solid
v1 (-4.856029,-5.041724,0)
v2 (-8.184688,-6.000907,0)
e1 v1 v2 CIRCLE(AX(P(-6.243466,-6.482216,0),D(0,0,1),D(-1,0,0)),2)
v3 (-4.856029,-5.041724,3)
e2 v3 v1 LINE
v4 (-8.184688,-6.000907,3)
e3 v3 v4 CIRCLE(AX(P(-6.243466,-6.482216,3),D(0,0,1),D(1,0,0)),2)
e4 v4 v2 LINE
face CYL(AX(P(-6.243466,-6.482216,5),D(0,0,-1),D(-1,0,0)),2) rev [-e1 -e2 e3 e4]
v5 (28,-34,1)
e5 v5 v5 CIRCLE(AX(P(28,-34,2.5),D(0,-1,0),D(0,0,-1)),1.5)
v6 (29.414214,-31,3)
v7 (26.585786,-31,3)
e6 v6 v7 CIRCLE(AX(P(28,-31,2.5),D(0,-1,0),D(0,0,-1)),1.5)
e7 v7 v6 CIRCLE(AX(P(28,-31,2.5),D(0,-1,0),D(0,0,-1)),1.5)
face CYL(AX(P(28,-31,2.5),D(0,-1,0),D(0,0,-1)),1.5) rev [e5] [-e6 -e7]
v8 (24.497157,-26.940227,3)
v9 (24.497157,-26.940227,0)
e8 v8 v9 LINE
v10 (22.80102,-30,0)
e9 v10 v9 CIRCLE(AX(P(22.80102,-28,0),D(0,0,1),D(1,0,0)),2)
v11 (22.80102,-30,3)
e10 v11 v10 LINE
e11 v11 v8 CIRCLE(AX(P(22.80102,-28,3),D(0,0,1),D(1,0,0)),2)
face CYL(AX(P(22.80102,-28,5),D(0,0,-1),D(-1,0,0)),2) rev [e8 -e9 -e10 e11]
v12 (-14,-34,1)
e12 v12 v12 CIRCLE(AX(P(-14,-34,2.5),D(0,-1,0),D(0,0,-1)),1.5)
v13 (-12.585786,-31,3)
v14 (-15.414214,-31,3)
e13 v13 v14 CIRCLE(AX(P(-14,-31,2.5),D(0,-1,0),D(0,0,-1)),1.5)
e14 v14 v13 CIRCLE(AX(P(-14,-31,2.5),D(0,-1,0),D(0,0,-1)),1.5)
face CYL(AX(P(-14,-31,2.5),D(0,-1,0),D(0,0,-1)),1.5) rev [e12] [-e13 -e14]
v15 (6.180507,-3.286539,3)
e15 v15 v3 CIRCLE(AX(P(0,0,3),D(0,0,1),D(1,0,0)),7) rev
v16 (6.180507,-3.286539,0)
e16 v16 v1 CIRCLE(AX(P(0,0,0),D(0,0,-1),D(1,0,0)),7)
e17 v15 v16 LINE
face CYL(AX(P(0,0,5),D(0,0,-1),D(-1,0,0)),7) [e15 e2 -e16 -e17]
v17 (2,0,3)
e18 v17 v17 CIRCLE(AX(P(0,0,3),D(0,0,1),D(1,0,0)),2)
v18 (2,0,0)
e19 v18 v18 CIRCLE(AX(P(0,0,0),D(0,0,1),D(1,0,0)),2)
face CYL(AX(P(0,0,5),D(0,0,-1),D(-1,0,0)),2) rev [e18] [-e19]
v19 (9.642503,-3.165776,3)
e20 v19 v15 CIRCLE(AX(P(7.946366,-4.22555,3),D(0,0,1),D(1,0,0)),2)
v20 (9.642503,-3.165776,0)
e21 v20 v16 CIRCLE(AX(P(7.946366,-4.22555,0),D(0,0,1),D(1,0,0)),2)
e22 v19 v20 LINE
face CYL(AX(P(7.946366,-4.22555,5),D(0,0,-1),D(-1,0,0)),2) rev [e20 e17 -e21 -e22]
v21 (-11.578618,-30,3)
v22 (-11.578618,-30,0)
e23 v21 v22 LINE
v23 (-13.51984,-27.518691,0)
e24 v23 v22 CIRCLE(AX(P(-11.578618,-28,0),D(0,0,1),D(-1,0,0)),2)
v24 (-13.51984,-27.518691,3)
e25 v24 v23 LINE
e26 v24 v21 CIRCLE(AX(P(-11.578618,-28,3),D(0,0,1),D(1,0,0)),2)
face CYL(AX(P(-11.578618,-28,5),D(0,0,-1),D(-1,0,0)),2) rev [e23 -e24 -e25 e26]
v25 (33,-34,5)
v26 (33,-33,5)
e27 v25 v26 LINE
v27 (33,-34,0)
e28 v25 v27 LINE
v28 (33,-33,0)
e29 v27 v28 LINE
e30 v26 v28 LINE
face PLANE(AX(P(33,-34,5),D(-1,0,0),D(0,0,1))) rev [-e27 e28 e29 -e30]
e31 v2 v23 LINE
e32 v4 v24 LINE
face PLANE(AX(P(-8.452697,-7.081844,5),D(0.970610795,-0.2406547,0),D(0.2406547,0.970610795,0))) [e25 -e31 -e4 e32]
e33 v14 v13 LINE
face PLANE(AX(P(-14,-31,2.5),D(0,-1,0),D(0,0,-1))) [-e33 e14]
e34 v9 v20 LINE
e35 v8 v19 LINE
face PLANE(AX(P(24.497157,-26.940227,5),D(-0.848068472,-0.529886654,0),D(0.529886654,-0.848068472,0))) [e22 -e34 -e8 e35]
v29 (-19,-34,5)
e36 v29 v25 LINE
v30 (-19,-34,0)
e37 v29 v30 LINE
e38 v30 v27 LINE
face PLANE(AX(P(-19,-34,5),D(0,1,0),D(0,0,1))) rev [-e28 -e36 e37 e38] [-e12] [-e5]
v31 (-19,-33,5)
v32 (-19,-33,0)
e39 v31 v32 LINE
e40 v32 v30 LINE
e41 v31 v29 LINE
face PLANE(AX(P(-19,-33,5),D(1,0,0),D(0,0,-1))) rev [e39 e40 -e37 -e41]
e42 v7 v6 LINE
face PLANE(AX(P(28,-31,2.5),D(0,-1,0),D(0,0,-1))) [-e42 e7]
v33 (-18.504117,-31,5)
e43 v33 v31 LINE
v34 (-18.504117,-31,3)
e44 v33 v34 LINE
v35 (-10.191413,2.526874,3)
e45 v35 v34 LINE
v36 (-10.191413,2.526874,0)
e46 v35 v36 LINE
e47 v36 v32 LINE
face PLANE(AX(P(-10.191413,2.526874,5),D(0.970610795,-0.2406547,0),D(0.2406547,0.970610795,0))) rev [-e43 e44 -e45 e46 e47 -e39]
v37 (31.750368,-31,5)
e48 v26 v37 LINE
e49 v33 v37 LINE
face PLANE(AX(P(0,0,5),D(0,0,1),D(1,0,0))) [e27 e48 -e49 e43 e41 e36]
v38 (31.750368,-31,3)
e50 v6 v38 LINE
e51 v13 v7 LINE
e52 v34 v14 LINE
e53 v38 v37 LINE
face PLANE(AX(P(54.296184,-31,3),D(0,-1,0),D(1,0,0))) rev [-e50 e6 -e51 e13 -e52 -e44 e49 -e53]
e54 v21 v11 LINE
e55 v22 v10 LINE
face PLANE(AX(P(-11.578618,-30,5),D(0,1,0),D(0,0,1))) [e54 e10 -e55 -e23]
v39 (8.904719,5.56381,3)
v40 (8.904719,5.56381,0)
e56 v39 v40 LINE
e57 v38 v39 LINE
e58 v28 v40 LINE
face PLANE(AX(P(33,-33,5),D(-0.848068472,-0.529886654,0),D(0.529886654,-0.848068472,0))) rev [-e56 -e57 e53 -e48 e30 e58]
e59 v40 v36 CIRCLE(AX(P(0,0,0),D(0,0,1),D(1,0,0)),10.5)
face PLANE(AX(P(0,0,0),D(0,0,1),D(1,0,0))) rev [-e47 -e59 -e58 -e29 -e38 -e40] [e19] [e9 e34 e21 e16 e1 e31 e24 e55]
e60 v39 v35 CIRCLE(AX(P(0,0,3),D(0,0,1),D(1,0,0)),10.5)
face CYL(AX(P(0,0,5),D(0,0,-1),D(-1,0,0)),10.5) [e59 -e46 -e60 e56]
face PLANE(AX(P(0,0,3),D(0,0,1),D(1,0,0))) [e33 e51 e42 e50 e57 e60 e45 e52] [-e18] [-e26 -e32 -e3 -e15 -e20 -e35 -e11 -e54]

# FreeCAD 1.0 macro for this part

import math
import FreeCAD as App
import Part
import Sketcher

V = App.Vector


def add_polygon(sketch, points):
    """Adds a closed chain of lines whose ends are joined by coincident constraints."""
    first, n = sketch.GeometryCount, len(points)
    for a, b in zip(points, points[1:] + points[:1]):
        sketch.addGeometry(Part.LineSegment(App.Vector(*a, 0), App.Vector(*b, 0)), False)
    for i in range(n):
        sketch.addConstraint(Sketcher.Constraint("Coincident", first + i, 2, first + (i + 1) % n, 1))

doc = App.newDocument("Part")
body = doc.addObject("PartDesign::Body", "Body")

sketch1 = body.newObject("Sketcher::SketchObject", "Sketch")
sketch1.AttachmentSupport = (doc.getObject("XY_Plane"), [""])
sketch1.MapMode = "FlatFace"
sketch1.addGeometry([
    Part.LineSegment(V(-10.191413, 2.526874, 0), V(-19, -33, 0)),
    Part.LineSegment(V(-19, -33, 0), V(-19, -34, 0)),
    Part.LineSegment(V(-19, -34, 0), V(33, -34, 0)),
    Part.LineSegment(V(33, -34, 0), V(33, -33, 0)),
    Part.LineSegment(V(33, -33, 0), V(8.904719, 5.56381, 0)),
    Part.ArcOfCircle(Part.Circle(V(0, 0, 0), V(0, 0, 1), 10.5), math.radians(31.997797), math.radians(166.074815)),
    Part.LineSegment(V(-13.51984, -27.518691, 0), V(-8.452697, -7.081844, 0)),
    Part.LineSegment(V(-8.452697, -7.081844, 0), V(-8.184688, -6.000907, 0)),
    Part.ArcOfCircle(Part.Circle(V(-6.243466, -6.482216, 0), V(0, 0, 1), 2), math.radians(46.074816), math.radians(166.074815)),
    Part.ArcOfCircle(Part.Circle(V(0, 0, 0), V(0, 0, 1), 7), math.radians(-133.925185), math.radians(-28.002203)),
    Part.ArcOfCircle(Part.Circle(V(7.946366, -4.22555, 0), V(0, 0, 1), 2), math.radians(31.997797), math.radians(151.997797)),
    Part.LineSegment(V(9.642503, -3.165776, 0), V(24.497157, -26.940227, 0)),
    Part.ArcOfCircle(Part.Circle(V(22.80102, -28, 0), V(0, 0, 1), 2), math.radians(-90), math.radians(31.997797)),
    Part.LineSegment(V(22.80102, -30, 0), V(-11.578618, -30, 0)),
    Part.ArcOfCircle(Part.Circle(V(-11.578618, -28, 0), V(0, 0, 1), 2), math.radians(166.074815), math.radians(270)),
    Part.Circle(V(0, 0, 0), V(0, 0, 1), 2),
], False)
sketch1.addConstraint([
    Sketcher.Constraint("Coincident", 0, 2, 1, 1),
    Sketcher.Constraint("Coincident", 1, 2, 2, 1),
    Sketcher.Constraint("Coincident", 2, 2, 3, 1),
    Sketcher.Constraint("Coincident", 3, 2, 4, 1),
    Sketcher.Constraint("Tangent", 4, 2, 5, 1),
    Sketcher.Constraint("Tangent", 5, 2, 0, 1),
    Sketcher.Constraint("Coincident", 6, 2, 7, 1),
    Sketcher.Constraint("Tangent", 7, 2, 8, 2),
    Sketcher.Constraint("Tangent", 8, 1, 9, 1),
    Sketcher.Constraint("Tangent", 9, 2, 10, 2),
    Sketcher.Constraint("Tangent", 10, 1, 11, 1),
    Sketcher.Constraint("Tangent", 11, 2, 12, 2),
    Sketcher.Constraint("Tangent", 12, 1, 13, 1),
    Sketcher.Constraint("Tangent", 13, 2, 14, 2),
    Sketcher.Constraint("Tangent", 14, 1, 6, 1),
    Sketcher.Constraint("Vertical", 1),
    Sketcher.Constraint("Horizontal", 2),
    Sketcher.Constraint("Vertical", 3),
    Sketcher.Constraint("Horizontal", 13),
    Sketcher.Constraint("Coincident", 5, 3, -1, 1),
    Sketcher.Constraint("Coincident", 9, 3, -1, 1),
    Sketcher.Constraint("Coincident", 15, 3, -1, 1),
    Sketcher.Constraint("Equal", 8, 10),
    Sketcher.Constraint("Equal", 10, 12),
    Sketcher.Constraint("Equal", 12, 14),
    Sketcher.Constraint("Equal", 14, 15),
    Sketcher.Constraint("Parallel", 0, 6),
    Sketcher.Constraint("Parallel", 6, 7),
    Sketcher.Constraint("Parallel", 4, 11),
    Sketcher.Constraint("Horizontal", 0, 2, 3, 2),
    Sketcher.Constraint("Diameter", 15, 4.0),
    Sketcher.Constraint("Radius", 9, 7.0),
    Sketcher.Constraint("Radius", 5, 10.5),
    Sketcher.Constraint("DistanceX", 2, 1, 2, 2, 52.0),
    Sketcher.Constraint("DistanceY", 1, 2, 1, 1, 1.0),
    Sketcher.Constraint("DistanceY", 12, 3, -1, 1, 28.0),
    Sketcher.Constraint("DistanceX", 0, 2, -1, 1, 19.0),
    Sketcher.Constraint("DistanceY", 0, 2, -1, 1, 33.0),
    Sketcher.Constraint("DistanceX", 13, 2, 13, 1, 34.379638),
    Sketcher.Constraint("DistanceY", 10, 3, -1, 1, 4.22555),
    Sketcher.Constraint("DistanceX", 6, 2, 8, 3, 2.209231),
])
pad1 = body.newObject("PartDesign::Pad", "Pad")
pad1.Profile = sketch1
pad1.Length = 5

sketch2 = body.newObject("Sketcher::SketchObject", "Sketch001")
sketch2.AttachmentSupport = (doc.getObject("XY_Plane"), [""])
sketch2.MapMode = "FlatFace"
sketch2.AttachmentOffset = App.Placement(V(0, 0, 5), App.Rotation())
add_polygon(sketch2, [(-51.294482, 22.734325), (-51.294482, -31), (54.296184, -31), (54.296184, 22.734325)])
sketch2.addConstraint([
    Sketcher.Constraint("Vertical", 0),
    Sketcher.Constraint("Horizontal", 1),
    Sketcher.Constraint("Vertical", 2),
    Sketcher.Constraint("Horizontal", 3),
    Sketcher.Constraint("DistanceY", 0, 2, -1, 1, 31.0),
    Sketcher.Constraint("DistanceX", 1, 1, 1, 2, 105.590666),
    Sketcher.Constraint("DistanceY", 0, 2, 0, 1, 53.734325),
    Sketcher.Constraint("DistanceX", 0, 2, -1, 1, 51.294482),
])
pocket1 = body.newObject("PartDesign::Pocket", "Pocket")
pocket1.Profile = sketch2
pocket1.Length = 2

sketch3 = body.newObject("Sketcher::SketchObject", "Sketch002")
sketch3.AttachmentSupport = (doc.getObject("XZ_Plane"), [""])
sketch3.MapMode = "FlatFace"
sketch3.AttachmentOffset = App.Placement(V(0, 0, 34), App.Rotation())
sketch3.addGeometry([
    Part.Circle(V(-14, 2.5, 0), V(0, 0, 1), 1.5),
    Part.Circle(V(28, 2.5, 0), V(0, 0, 1), 1.5),
], False)
sketch3.addConstraint([
    Sketcher.Constraint("Equal", 0, 1),
    Sketcher.Constraint("Horizontal", 0, 3, 1, 3),
    Sketcher.Constraint("Diameter", 0, 3.0),
    Sketcher.Constraint("DistanceX", 0, 3, -1, 1, 14.0),
    Sketcher.Constraint("DistanceX", -1, 1, 1, 3, 28.0),
    Sketcher.Constraint("DistanceY", -1, 1, 0, 3, 2.5),
])
pocket2 = body.newObject("PartDesign::Pocket", "Pocket001")
pocket2.Profile = sketch3
pocket2.Length = 3

doc.recompute()
